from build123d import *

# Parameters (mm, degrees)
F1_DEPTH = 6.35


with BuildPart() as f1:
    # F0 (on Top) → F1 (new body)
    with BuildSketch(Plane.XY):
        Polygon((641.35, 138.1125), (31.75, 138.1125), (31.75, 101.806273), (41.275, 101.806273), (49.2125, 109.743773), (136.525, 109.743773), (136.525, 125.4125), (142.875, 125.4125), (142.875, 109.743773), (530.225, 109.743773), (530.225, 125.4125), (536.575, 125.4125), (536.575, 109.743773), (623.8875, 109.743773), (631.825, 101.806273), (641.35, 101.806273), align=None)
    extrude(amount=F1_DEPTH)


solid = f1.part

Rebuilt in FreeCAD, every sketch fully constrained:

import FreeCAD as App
import Part
import Sketcher
from FreeCAD import Vector
Q = App.Units.Quantity

doc = App.newDocument("Part")
body = doc.addObject("PartDesign::Body", "Body")

sketch1 = body.newObject("Sketcher::SketchObject", "Sketch")
sketch1.AttachmentSupport = (doc.getObject("XY_Plane"), [""])
sketch1.MapMode = "FlatFace"
sketch1.addGeometry([
    Part.LineSegment(Vector(641, 138, 0), Vector(32, 138, 0)),
    Part.LineSegment(Vector(32, 138, 0), Vector(32, 102, 0)),
    Part.LineSegment(Vector(32, 102, 0), Vector(41, 102, 0)),
    Part.LineSegment(Vector(41, 102, 0), Vector(49, 110, 0)),
    Part.LineSegment(Vector(49, 110, 0), Vector(137, 110, 0)),
    Part.LineSegment(Vector(137, 110, 0), Vector(137, 125, 0)),
    Part.LineSegment(Vector(137, 125, 0), Vector(143, 125, 0)),
    Part.LineSegment(Vector(143, 125, 0), Vector(143, 110, 0)),
    Part.LineSegment(Vector(143, 110, 0), Vector(530, 110, 0)),
    Part.LineSegment(Vector(530, 110, 0), Vector(530, 125, 0)),
    Part.LineSegment(Vector(530, 125, 0), Vector(537, 125, 0)),
    Part.LineSegment(Vector(537, 125, 0), Vector(537, 110, 0)),
    Part.LineSegment(Vector(537, 110, 0), Vector(624, 110, 0)),
    Part.LineSegment(Vector(624, 110, 0), Vector(632, 102, 0)),
    Part.LineSegment(Vector(632, 102, 0), Vector(641, 102, 0)),
    Part.LineSegment(Vector(641, 102, 0), Vector(641, 138, 0)),
], False)
sketch1.addConstraint([
    Sketcher.Constraint("Coincident", 0, 2, 1, 1),
    Sketcher.Constraint("Coincident", 1, 2, 2, 1),
    Sketcher.Constraint("Coincident", 2, 2, 3, 1),
    Sketcher.Constraint("Coincident", 3, 2, 4, 1),
    Sketcher.Constraint("Coincident", 4, 2, 5, 1),
    Sketcher.Constraint("Coincident", 5, 2, 6, 1),
    Sketcher.Constraint("Coincident", 6, 2, 7, 1),
    Sketcher.Constraint("Coincident", 7, 2, 8, 1),
    Sketcher.Constraint("Coincident", 8, 2, 9, 1),
    Sketcher.Constraint("Coincident", 9, 2, 10, 1),
    Sketcher.Constraint("Coincident", 10, 2, 11, 1),
    Sketcher.Constraint("Coincident", 11, 2, 12, 1),
    Sketcher.Constraint("Coincident", 12, 2, 13, 1),
    Sketcher.Constraint("Coincident", 13, 2, 14, 1),
    Sketcher.Constraint("Coincident", 14, 2, 15, 1),
    Sketcher.Constraint("Coincident", 15, 2, 0, 1),
    Sketcher.Constraint("Horizontal", 0),
    Sketcher.Constraint("Vertical", 1),
    Sketcher.Constraint("Horizontal", 2),
    Sketcher.Constraint("Horizontal", 4),
    Sketcher.Constraint("Vertical", 5),
    Sketcher.Constraint("Horizontal", 6),
    Sketcher.Constraint("Vertical", 7),
    Sketcher.Constraint("Horizontal", 8),
    Sketcher.Constraint("Vertical", 9),
    Sketcher.Constraint("Horizontal", 10),
    Sketcher.Constraint("Vertical", 11),
    Sketcher.Constraint("Horizontal", 12),
    Sketcher.Constraint("Horizontal", 14),
    Sketcher.Constraint("Vertical", 15),
    Sketcher.Constraint("Perpendicular", 3, 13),
    Sketcher.Constraint("Horizontal", 4, 2, 7, 2),
    Sketcher.Constraint("Horizontal", 6, 2, 9, 2),
    Sketcher.Constraint("Horizontal", 8, 2, 11, 2),
    Sketcher.Constraint("Horizontal", 2, 2, 13, 2),
    Sketcher.Constraint("Equal", 6, 10),
    Sketcher.Constraint("Equal", 4, 12),
    Sketcher.Constraint("Equal", 2, 14),
    Sketcher.Constraint("Equal", 3, 13),
    Sketcher.Constraint("DistanceX", 0, 2, 0, 1, Q("24 in")),
    Sketcher.Constraint("DistanceX", 2, 2, 6, 2, Q("4 in")),
    Sketcher.Constraint("DistanceX", 6, 1, 6, 2, Q("0.25 in")),
    Sketcher.Constraint("DistanceX", 8, 1, 8, 2, Q("15.25 in")),
    Sketcher.Constraint("DistanceY", 5, 2, 0, 2, Q("0.5 in")),
    Sketcher.Constraint("DistanceX", 4, 1, 4, 2, Q("3.4375 in")),
    Sketcher.Constraint("DistanceX", -1, 1, 0, 2, Q("1.25 in")),
    Sketcher.Constraint("DistanceY", -1, 1, 0, 2, Q("5.4375 in")),
    Sketcher.Constraint("DistanceY", 1, 2, 1, 1, Q("36.306227 mm")),
])
pad1 = body.newObject("PartDesign::Pad", "Pad")
pad1.Profile = sketch1
pad1.Length = Q("0.25 in")

doc.recompute()
